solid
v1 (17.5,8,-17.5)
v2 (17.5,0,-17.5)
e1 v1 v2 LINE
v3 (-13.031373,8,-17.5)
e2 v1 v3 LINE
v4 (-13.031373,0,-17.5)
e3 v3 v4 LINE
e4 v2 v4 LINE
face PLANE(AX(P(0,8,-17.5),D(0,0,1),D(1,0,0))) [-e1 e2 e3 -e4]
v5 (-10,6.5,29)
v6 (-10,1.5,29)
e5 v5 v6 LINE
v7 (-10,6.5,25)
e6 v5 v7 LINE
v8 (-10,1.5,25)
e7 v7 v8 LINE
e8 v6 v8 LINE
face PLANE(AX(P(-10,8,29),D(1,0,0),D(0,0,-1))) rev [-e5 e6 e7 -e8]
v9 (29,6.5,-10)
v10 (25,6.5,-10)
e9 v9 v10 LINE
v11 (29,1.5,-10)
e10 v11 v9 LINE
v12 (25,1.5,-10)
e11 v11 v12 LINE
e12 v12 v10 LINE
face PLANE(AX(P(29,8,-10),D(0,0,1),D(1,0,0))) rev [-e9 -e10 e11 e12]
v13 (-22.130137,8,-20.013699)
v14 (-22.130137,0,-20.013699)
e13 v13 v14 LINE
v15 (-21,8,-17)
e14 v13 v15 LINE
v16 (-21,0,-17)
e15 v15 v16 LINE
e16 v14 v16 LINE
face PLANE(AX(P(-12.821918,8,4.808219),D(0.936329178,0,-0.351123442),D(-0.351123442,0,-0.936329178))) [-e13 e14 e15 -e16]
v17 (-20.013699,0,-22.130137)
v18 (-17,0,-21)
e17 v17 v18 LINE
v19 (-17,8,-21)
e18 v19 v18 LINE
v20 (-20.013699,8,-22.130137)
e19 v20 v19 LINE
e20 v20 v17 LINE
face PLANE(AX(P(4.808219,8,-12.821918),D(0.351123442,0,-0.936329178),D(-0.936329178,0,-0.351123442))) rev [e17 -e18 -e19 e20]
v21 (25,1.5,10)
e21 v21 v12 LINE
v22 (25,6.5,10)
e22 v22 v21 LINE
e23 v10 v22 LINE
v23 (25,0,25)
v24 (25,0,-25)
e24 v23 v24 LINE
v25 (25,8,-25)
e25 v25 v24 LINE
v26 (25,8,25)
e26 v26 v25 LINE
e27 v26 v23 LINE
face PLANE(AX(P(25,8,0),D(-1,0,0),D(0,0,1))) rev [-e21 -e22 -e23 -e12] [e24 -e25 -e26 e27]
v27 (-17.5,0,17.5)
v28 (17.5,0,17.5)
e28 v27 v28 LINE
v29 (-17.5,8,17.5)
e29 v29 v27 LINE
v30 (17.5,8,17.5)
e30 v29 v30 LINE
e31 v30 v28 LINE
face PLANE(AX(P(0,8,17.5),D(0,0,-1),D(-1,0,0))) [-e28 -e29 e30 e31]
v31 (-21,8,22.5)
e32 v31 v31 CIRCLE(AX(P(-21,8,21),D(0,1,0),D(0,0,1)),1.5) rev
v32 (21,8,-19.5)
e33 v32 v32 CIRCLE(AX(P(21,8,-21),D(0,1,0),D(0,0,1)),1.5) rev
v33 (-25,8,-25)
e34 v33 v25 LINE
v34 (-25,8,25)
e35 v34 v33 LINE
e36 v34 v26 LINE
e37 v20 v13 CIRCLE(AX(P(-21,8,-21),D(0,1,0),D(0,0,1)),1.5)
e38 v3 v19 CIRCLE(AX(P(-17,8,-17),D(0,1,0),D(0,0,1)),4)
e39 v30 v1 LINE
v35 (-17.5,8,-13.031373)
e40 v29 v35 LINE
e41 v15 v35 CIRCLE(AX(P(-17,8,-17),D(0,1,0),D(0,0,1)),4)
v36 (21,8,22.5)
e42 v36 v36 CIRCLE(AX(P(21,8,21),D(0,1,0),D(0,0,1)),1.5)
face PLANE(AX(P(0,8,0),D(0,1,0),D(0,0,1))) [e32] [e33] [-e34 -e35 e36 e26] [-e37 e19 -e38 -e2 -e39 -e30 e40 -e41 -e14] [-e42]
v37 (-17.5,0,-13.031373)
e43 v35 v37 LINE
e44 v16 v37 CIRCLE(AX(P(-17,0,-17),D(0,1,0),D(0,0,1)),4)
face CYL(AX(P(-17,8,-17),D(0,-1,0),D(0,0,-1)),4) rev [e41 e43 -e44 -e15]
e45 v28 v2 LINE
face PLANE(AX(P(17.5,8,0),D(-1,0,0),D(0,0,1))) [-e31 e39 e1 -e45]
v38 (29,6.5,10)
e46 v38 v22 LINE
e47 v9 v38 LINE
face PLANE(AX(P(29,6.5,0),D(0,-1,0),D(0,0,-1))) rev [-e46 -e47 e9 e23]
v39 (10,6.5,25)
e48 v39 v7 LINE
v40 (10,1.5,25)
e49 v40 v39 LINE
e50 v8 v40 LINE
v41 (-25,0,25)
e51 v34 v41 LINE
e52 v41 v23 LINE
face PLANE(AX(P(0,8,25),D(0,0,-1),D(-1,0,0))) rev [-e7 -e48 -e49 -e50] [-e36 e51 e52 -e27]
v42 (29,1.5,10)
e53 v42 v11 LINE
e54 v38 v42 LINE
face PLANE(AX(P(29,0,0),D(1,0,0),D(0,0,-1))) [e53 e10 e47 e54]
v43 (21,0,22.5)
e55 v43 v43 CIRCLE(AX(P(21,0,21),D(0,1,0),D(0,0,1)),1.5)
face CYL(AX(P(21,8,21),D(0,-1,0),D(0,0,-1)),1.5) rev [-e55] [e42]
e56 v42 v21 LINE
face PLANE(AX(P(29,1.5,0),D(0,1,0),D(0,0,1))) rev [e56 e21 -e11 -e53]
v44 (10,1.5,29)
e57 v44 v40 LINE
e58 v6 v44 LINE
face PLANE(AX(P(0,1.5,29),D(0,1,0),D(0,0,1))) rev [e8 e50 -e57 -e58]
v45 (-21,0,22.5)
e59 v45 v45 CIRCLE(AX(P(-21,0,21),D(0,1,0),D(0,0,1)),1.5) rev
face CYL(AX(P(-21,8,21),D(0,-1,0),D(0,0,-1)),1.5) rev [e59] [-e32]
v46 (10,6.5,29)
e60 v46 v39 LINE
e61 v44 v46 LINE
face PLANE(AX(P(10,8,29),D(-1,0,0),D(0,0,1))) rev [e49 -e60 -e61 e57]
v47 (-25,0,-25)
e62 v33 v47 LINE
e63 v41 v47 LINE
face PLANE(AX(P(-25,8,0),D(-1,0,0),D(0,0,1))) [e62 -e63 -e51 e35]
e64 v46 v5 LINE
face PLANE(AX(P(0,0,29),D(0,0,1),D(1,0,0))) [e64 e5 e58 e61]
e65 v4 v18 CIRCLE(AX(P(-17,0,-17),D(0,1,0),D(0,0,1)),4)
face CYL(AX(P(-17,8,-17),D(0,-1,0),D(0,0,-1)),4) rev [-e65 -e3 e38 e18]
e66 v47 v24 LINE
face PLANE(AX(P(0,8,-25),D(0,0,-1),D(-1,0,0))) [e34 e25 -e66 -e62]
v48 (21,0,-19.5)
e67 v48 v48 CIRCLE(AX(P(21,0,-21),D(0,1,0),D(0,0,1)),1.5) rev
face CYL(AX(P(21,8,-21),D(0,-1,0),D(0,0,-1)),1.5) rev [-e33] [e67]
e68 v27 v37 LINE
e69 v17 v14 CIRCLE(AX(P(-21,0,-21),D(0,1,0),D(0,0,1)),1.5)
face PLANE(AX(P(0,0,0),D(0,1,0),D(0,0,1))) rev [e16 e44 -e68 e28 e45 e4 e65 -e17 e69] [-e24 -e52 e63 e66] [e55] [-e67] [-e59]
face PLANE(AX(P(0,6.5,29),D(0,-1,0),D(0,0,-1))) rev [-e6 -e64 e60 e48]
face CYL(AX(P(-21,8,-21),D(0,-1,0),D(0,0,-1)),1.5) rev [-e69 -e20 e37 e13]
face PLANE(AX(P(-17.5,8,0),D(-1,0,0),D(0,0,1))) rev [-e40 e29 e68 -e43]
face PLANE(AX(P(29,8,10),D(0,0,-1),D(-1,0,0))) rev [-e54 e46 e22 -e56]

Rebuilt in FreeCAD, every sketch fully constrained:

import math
import FreeCAD as App
import Part
import Sketcher

V = App.Vector
Q = App.Units.Quantity

doc = App.newDocument("Part")
body = doc.addObject("PartDesign::Body", "Body")

sketch1 = doc.addObject("Sketcher::SketchObject", "Sketch")
body.addObject(sketch1)
sketch1.AttachmentSupport = (doc.XZ_Plane, [""])
sketch1.MapMode = "FlatFace"
sketch1.addGeometry([
    Part.LineSegment(V(-25, -25, 0), V(-25, 25, 0)),
    Part.LineSegment(V(-25, 25, 0), V(25, 25, 0)),
    Part.LineSegment(V(25, 25, 0), V(25, -25, 0)),
    Part.LineSegment(V(25, -25, 0), V(-25, -25, 0)),
    Part.Circle(V(-21, 21, 0), V(0, 0, 1), 1.5),
    Part.Circle(V(21, 21, 0), V(0, 0, 1), 1.5),
    Part.ArcOfCircle(Part.Circle(V(-17, -17, 0), V(0, 0, 1), 4), math.radians(-90), math.radians(-7)),
    Part.LineSegment(V(-13, -17.5, 0), V(17.5, -17.5, 0)),
    Part.LineSegment(V(17.5, -17.5, 0), V(17.5, 17.5, 0)),
    Part.LineSegment(V(17.5, 17.5, 0), V(-17.5, 17.5, 0)),
    Part.LineSegment(V(-17.5, 17.5, 0), V(-17.5, -13, 0)),
    Part.ArcOfCircle(Part.Circle(V(-17, -17, 0), V(0, 0, 1), 4), math.radians(97), math.radians(180)),
    Part.LineSegment(V(-21, -17, 0), V(-22.1, -20, 0)),
    Part.ArcOfCircle(Part.Circle(V(-21, -21, 0), V(0, 0, 1), 1.5), math.radians(139), math.radians(311)),
    Part.LineSegment(V(-20, -22.1, 0), V(-17, -21, 0)),
    Part.Circle(V(21, -21, 0), V(0, 0, 1), 1.5),
], False)
sketch1.addConstraint([
    Sketcher.Constraint("Coincident", 0, 2, 1, 1),
    Sketcher.Constraint("Coincident", 1, 2, 2, 1),
    Sketcher.Constraint("Coincident", 2, 2, 3, 1),
    Sketcher.Constraint("Coincident", 3, 2, 0, 1),
    Sketcher.Constraint("Coincident", 6, 2, 7, 1),
    Sketcher.Constraint("Coincident", 7, 2, 8, 1),
    Sketcher.Constraint("Coincident", 8, 2, 9, 1),
    Sketcher.Constraint("Coincident", 9, 2, 10, 1),
    Sketcher.Constraint("Coincident", 10, 2, 11, 1),
    Sketcher.Constraint("Coincident", 11, 2, 12, 1),
    Sketcher.Constraint("Coincident", 12, 2, 13, 1),
    Sketcher.Constraint("Coincident", 13, 2, 14, 1),
    Sketcher.Constraint("Coincident", 14, 2, 6, 1),
    Sketcher.Constraint("Vertical", 0),
    Sketcher.Constraint("Horizontal", 1),
    Sketcher.Constraint("Vertical", 2),
    Sketcher.Constraint("Horizontal", 3),
    Sketcher.Constraint("Horizontal", 7),
    Sketcher.Constraint("Vertical", 8),
    Sketcher.Constraint("Horizontal", 9),
    Sketcher.Constraint("Vertical", 10),
    Sketcher.Constraint("Coincident", 11, 3, 6, 3),
    Sketcher.Constraint("Equal", 4, 5),
    Sketcher.Constraint("Equal", 6, 11),
    Sketcher.Constraint("Equal", 5, 13),
    Sketcher.Constraint("Equal", 13, 15),
    Sketcher.Constraint("Symmetric", 5, 3, 13, 3, -1, 1),
    Sketcher.Constraint("Symmetric", 4, 3, 15, 3, -1, 1),
    Sketcher.Constraint("Symmetric", 0, 2, 2, 2, -1, 1),
    Sketcher.Constraint("Symmetric", 7, 2, 9, 2, -1, 1),
    Sketcher.Constraint("Symmetric", 4, 3, 5, 3, -2),
    Sketcher.Constraint("Horizontal", 6, 3, 11, 2),
    Sketcher.Constraint("Horizontal", 15, 3, 14, 2),
    Sketcher.Constraint("Vertical", 13, 3, 11, 2),
    Sketcher.Constraint("Vertical", 11, 3, 14, 2),
    Sketcher.Constraint("Equal", 3, 0),
    Sketcher.Constraint("Equal", 9, 8),
    Sketcher.Constraint("Equal", 7, 10),
    Sketcher.Constraint("Equal", 12, 14),
    Sketcher.Constraint("Diameter", 4, Q("3 mm")),
    Sketcher.Constraint("Radius", 6, Q("4 mm")),
    Sketcher.Constraint("DistanceX", 1, 1, 1, 2, Q("50 mm")),
    Sketcher.Constraint("DistanceX", 9, 2, 9, 1, Q("35 mm")),
    Sketcher.Constraint("DistanceX", 4, 3, -1, 1, Q("21 mm")),
    Sketcher.Constraint("DistanceY", 12, 2, -1, 1, Q("20.013699 mm")),
])
pad1 = doc.addObject("PartDesign::Pad", "Pad")
body.addObject(pad1)
pad1.Profile = sketch1
pad1.Length = 8
pad1.Reversed = True

sketch2 = doc.addObject("Sketcher::SketchObject", "Sketch001")
body.addObject(sketch2)
sketch2.AttachmentSupport = (doc.XY_Plane, [""])
sketch2.MapMode = "FlatFace"
sketch2.AttachmentOffset = App.Placement(V(0, 0, 25), App.Rotation())
sketch2.addGeometry([
    Part.LineSegment(V(-10, 6, 0), V(-10, 2, 0)),
    Part.LineSegment(V(-10, 2, 0), V(10, 2, 0)),
    Part.LineSegment(V(10, 2, 0), V(10, 6, 0)),
    Part.LineSegment(V(10, 6, 0), V(-10, 6, 0)),
], False)
sketch2.addConstraint([
    Sketcher.Constraint("Coincident", 0, 2, 1, 1),
    Sketcher.Constraint("Coincident", 1, 2, 2, 1),
    Sketcher.Constraint("Coincident", 2, 2, 3, 1),
    Sketcher.Constraint("Coincident", 3, 2, 0, 1),
    Sketcher.Constraint("Vertical", 0),
    Sketcher.Constraint("Horizontal", 1),
    Sketcher.Constraint("Vertical", 2),
    Sketcher.Constraint("Horizontal", 3),
    Sketcher.Constraint("DistanceX", 1, 1, 1, 2, Q("20 mm")),
    Sketcher.Constraint("DistanceY", 0, 2, 0, 1, Q("5 mm")),
    Sketcher.Constraint("DistanceX", 0, 2, -1, 1, Q("10 mm")),
    Sketcher.Constraint("DistanceY", -1, 1, 0, 2, Q("1.5 mm")),
])
pad2 = doc.addObject("PartDesign::Pad", "Pad001")
body.addObject(pad2)
pad2.Profile = sketch2
pad2.Length = 4

sketch3 = doc.addObject("Sketcher::SketchObject", "Sketch002")
body.addObject(sketch3)
sketch3.AttachmentSupport = (doc.YZ_Plane, [""])
sketch3.MapMode = "FlatFace"
sketch3.AttachmentOffset = App.Placement(V(0, 0, 25), App.Rotation())
sketch3.addGeometry([
    Part.LineSegment(V(6, 10, 0), V(2, 10, 0)),
    Part.LineSegment(V(2, 10, 0), V(2, -10, 0)),
    Part.LineSegment(V(2, -10, 0), V(6, -10, 0)),
    Part.LineSegment(V(6, -10, 0), V(6, 10, 0)),
], False)
sketch3.addConstraint([
    Sketcher.Constraint("Coincident", 0, 2, 1, 1),
    Sketcher.Constraint("Coincident", 1, 2, 2, 1),
    Sketcher.Constraint("Coincident", 2, 2, 3, 1),
    Sketcher.Constraint("Coincident", 3, 2, 0, 1),
    Sketcher.Constraint("Horizontal", 0),
    Sketcher.Constraint("Vertical", 1),
    Sketcher.Constraint("Horizontal", 2),
    Sketcher.Constraint("Vertical", 3),
    Sketcher.Constraint("DistanceX", 0, 2, 0, 1, Q("5 mm")),
    Sketcher.Constraint("DistanceY", 1, 2, 1, 1, Q("20 mm")),
    Sketcher.Constraint("DistanceY", -1, 1, 0, 2, Q("10 mm")),
    Sketcher.Constraint("DistanceX", -1, 1, 0, 2, Q("1.5 mm")),
])
pad3 = doc.addObject("PartDesign::Pad", "Pad002")
body.addObject(pad3)
pad3.Profile = sketch3
pad3.Length = 4

doc.recompute()
